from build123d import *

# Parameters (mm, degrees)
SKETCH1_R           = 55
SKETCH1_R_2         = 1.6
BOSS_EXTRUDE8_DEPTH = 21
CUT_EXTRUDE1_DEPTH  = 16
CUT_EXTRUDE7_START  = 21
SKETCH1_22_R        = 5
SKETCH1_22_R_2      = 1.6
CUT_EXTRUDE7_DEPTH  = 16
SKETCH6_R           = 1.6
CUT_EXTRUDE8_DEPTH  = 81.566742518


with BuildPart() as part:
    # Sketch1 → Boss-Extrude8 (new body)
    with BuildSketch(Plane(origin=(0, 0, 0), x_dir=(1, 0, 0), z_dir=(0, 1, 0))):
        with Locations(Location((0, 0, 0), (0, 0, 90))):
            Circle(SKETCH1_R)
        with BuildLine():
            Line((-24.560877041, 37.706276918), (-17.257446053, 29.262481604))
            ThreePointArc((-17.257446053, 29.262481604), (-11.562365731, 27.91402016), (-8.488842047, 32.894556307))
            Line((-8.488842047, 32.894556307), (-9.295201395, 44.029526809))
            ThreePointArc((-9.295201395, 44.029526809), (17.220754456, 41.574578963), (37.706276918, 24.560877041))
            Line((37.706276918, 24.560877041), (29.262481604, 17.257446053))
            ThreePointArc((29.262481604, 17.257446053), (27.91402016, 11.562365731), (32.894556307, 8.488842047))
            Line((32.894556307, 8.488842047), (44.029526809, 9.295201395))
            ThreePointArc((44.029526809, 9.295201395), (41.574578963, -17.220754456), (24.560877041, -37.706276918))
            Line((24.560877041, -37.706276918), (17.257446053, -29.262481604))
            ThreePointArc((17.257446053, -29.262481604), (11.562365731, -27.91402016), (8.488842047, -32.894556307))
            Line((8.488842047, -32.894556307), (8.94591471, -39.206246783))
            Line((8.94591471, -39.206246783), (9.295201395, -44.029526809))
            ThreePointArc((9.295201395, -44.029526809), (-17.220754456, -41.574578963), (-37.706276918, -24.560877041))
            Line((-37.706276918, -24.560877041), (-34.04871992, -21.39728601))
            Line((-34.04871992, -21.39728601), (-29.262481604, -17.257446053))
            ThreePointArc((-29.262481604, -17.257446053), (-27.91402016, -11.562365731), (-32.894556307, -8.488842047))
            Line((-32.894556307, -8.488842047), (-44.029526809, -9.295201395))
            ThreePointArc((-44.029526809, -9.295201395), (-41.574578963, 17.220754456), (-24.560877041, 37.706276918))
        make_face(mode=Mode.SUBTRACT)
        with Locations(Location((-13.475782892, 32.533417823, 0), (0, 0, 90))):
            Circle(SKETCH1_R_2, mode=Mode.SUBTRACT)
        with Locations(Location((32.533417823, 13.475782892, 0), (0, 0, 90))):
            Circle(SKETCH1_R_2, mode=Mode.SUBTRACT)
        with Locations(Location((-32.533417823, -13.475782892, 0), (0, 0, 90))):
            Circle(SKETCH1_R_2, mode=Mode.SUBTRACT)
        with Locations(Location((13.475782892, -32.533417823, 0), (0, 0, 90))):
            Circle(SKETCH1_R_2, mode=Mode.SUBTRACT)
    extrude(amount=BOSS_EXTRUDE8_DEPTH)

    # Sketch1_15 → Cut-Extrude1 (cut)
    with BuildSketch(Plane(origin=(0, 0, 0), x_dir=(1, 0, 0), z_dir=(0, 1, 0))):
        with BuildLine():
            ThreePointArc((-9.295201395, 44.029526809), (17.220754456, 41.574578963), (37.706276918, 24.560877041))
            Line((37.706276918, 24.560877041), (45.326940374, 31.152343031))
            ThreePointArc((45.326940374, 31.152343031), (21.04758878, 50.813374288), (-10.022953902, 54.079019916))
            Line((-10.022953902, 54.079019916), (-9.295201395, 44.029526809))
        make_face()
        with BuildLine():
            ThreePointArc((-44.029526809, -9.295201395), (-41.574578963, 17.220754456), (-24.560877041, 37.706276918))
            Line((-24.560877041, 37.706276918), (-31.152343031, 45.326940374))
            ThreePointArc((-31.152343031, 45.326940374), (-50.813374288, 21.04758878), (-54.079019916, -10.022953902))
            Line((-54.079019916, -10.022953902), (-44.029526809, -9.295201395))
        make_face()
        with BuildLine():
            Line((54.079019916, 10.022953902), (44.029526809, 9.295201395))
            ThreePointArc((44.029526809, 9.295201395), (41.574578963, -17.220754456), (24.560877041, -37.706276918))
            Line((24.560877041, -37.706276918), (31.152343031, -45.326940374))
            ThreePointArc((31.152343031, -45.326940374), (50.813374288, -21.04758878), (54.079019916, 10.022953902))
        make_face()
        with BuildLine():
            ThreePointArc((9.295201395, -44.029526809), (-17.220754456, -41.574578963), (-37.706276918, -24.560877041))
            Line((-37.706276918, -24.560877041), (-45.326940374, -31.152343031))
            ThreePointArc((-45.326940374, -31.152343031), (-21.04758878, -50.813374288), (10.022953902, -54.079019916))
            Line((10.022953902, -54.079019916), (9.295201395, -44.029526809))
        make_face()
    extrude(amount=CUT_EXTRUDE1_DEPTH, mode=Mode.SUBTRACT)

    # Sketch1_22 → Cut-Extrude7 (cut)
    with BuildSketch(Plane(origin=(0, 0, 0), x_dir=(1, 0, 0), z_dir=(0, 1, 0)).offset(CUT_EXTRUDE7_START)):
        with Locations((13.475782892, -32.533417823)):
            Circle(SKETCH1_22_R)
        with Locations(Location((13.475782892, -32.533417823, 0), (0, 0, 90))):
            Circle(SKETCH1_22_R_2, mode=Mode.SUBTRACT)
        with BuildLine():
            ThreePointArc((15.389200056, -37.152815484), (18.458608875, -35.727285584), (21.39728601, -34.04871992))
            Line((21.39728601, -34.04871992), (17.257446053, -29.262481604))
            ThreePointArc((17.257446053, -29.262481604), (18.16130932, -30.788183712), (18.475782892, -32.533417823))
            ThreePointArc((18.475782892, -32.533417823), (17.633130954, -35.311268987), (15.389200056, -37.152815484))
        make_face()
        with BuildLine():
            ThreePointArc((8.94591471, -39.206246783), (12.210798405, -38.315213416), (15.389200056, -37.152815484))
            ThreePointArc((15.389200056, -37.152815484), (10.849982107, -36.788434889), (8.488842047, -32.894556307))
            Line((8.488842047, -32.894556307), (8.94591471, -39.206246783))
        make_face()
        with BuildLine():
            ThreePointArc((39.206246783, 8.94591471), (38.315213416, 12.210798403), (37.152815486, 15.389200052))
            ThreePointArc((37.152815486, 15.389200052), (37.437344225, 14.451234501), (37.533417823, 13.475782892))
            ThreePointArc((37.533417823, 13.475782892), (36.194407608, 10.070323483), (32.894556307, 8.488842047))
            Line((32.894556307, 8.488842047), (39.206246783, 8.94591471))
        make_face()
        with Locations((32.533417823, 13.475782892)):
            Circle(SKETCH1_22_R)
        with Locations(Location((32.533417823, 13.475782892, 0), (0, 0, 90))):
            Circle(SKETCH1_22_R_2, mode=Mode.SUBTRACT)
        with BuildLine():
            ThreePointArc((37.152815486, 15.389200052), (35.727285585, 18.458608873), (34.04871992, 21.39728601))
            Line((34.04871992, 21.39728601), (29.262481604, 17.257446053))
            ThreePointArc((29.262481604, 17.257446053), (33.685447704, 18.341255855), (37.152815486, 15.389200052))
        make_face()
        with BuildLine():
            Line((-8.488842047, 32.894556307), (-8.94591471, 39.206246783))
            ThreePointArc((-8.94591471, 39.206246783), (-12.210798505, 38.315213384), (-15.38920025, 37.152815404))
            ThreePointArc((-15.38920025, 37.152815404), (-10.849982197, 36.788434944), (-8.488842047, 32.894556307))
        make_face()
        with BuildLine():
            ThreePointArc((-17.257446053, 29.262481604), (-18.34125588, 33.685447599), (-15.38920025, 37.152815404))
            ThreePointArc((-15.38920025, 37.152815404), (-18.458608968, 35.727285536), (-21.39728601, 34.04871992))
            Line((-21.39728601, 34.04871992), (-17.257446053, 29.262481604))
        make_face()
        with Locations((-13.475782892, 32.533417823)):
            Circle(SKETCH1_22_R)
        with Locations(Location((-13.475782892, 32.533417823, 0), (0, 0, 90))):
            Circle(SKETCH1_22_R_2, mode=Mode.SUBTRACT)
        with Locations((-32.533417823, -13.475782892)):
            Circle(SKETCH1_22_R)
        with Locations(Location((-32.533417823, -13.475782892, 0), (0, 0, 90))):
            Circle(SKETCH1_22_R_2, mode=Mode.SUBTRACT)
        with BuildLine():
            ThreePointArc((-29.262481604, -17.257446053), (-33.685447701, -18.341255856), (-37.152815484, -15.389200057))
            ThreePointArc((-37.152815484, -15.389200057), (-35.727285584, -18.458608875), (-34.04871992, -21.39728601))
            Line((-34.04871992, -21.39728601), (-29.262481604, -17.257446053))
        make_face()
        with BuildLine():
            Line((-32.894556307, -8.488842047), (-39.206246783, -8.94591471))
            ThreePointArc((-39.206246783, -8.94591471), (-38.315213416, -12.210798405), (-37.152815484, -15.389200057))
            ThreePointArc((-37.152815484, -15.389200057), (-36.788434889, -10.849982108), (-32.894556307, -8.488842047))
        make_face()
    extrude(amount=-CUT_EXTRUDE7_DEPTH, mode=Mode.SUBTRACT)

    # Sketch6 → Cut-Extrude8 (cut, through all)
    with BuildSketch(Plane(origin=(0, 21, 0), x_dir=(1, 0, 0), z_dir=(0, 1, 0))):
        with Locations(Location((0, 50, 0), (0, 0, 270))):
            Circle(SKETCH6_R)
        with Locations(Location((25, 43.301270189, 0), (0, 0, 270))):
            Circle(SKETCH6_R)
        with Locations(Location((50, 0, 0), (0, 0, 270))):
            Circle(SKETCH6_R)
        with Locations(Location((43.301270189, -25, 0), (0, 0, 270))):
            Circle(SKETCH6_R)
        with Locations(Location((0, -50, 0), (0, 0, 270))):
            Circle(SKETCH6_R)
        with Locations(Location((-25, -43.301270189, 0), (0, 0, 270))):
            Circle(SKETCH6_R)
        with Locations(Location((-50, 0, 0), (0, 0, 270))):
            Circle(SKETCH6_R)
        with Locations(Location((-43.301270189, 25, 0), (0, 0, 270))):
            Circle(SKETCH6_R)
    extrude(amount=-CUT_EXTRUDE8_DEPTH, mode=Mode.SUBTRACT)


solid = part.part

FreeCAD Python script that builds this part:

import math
import FreeCAD as App
import Part
import Sketcher
from FreeCAD import Vector

doc = App.newDocument("Part")
body = doc.addObject("PartDesign::Body", "Body")

# Sketch on XZ plane
sketch1 = body.newObject("Sketcher::SketchObject", "Sketch")
sketch1.AttachmentSupport = (doc.getObject("XZ_Plane"), [""])
sketch1.MapMode = "FlatFace"
sketch1.addGeometry([
    Part.Circle(Vector(0, 0, 0), Vector(0, 0, 1), 55),  # 0
    Part.Circle(Vector(13.5, 32.5, 0), Vector(0, 0, 1), 1.6),  # 1
    Part.Circle(Vector(32.5, -13.5, 0), Vector(0, 0, 1), 1.6),  # 2
    Part.Circle(Vector(-32.5, 13.5, 0), Vector(0, 0, 1), 1.6),  # 3
    Part.ArcOfCircle(Part.Circle(Vector(0, 0, 0), Vector(0, 0, 1), 45), math.radians(168), math.radians(237)),  # 4
    Part.LineSegment(Vector(-24.6, -37.7, 0), Vector(-17.3, -29.3, 0)),  # 5
    Part.ArcOfCircle(Part.Circle(Vector(-13.5, -32.5, 0), Vector(0, 0, 1), 5), math.radians(-4), math.radians(139)),  # 6
    Part.LineSegment(Vector(-8.5, -32.9, 0), Vector(-9.3, -44, 0)),  # 7
    Part.ArcOfCircle(Part.Circle(Vector(0, 0, 0), Vector(0, 0, 1), 45), math.radians(-102), math.radians(-33)),  # 8
    Part.LineSegment(Vector(37.7, -24.6, 0), Vector(29.3, -17.3, 0)),  # 9
    Part.ArcOfCircle(Part.Circle(Vector(32.5, -13.5, 0), Vector(0, 0, 1), 5), math.radians(86), math.radians(229)),  # 10
    Part.LineSegment(Vector(32.9, -8.5, 0), Vector(44, -9.3, 0)),  # 11
    Part.ArcOfCircle(Part.Circle(Vector(0, 0, 0), Vector(0, 0, 1), 45), math.radians(-12), math.radians(57)),  # 12
    Part.LineSegment(Vector(24.6, 37.7, 0), Vector(17.3, 29.3, 0)),  # 13
    Part.ArcOfCircle(Part.Circle(Vector(13.5, 32.5, 0), Vector(0, 0, 1), 5), math.radians(176), math.radians(319)),  # 14
    Part.LineSegment(Vector(8.5, 32.9, 0), Vector(8.9, 39.2, 0)),  # 15
    Part.LineSegment(Vector(8.9, 39.2, 0), Vector(9.3, 44, 0)),  # 16
    Part.ArcOfCircle(Part.Circle(Vector(0, 0, 0), Vector(0, 0, 1), 45), math.radians(78), math.radians(147)),  # 17
    Part.LineSegment(Vector(-37.7, 24.6, 0), Vector(-34, 21.4, 0)),  # 18
    Part.LineSegment(Vector(-34, 21.4, 0), Vector(-29.3, 17.3, 0)),  # 19
    Part.ArcOfCircle(Part.Circle(Vector(-32.5, 13.5, 0), Vector(0, 0, 1), 5), math.radians(-94), math.radians(49)),  # 20
    Part.LineSegment(Vector(-32.9, 8.5, 0), Vector(-44, 9.3, 0)),  # 21
    Part.Circle(Vector(-13.5, -32.5, 0), Vector(0, 0, 1), 1.6),  # 22
], False)
sketch1.addConstraint([
    Sketcher.Constraint("Coincident", 4, 2, 5, 1),
    Sketcher.Constraint("Tangent", 5, 2, 6, 2),
    Sketcher.Constraint("Tangent", 6, 1, 7, 1),
    Sketcher.Constraint("Coincident", 7, 2, 8, 1),
    Sketcher.Constraint("Coincident", 8, 2, 9, 1),
    Sketcher.Constraint("Tangent", 9, 2, 10, 2),
    Sketcher.Constraint("Tangent", 10, 1, 11, 1),
    Sketcher.Constraint("Coincident", 11, 2, 12, 1),
    Sketcher.Constraint("Coincident", 12, 2, 13, 1),
    Sketcher.Constraint("Tangent", 13, 2, 14, 2),
    Sketcher.Constraint("Tangent", 14, 1, 15, 1),
    Sketcher.Constraint("Coincident", 15, 2, 16, 1),
    Sketcher.Constraint("Coincident", 16, 2, 17, 1),
    Sketcher.Constraint("Coincident", 17, 2, 18, 1),
    Sketcher.Constraint("Coincident", 18, 2, 19, 1),
    Sketcher.Constraint("Tangent", 19, 2, 20, 2),
    Sketcher.Constraint("Tangent", 20, 1, 21, 1),
    Sketcher.Constraint("Coincident", 21, 2, 4, 1),
    Sketcher.Constraint("Coincident", 0, 3, -1, 1),
    Sketcher.Constraint("Coincident", 4, 3, -1, 1),
    Sketcher.Constraint("Coincident", 8, 3, -1, 1),
    Sketcher.Constraint("Coincident", 12, 3, -1, 1),
    Sketcher.Constraint("Coincident", 17, 3, -1, 1),
    Sketcher.Constraint("Coincident", 10, 3, 2, 3),
    Sketcher.Constraint("Coincident", 14, 3, 1, 3),
    Sketcher.Constraint("Coincident", 20, 3, 3, 3),
    Sketcher.Constraint("Coincident", 22, 3, 6, 3),
    Sketcher.Constraint("Equal", 1, 2),
    Sketcher.Constraint("Equal", 2, 3),
    Sketcher.Constraint("Equal", 4, 8),
    Sketcher.Constraint("Equal", 6, 10),
    Sketcher.Constraint("Equal", 8, 12),
    Sketcher.Constraint("Equal", 10, 14),
    Sketcher.Constraint("Equal", 12, 17),
    Sketcher.Constraint("Equal", 14, 20),
    Sketcher.Constraint("Equal", 3, 22),
    Sketcher.Constraint("Symmetric", 2, 3, 3, 3, -1, 1),
    Sketcher.Constraint("Symmetric", 1, 3, 6, 3, -1, 1),
    Sketcher.Constraint("Perpendicular", 5, 9),
    Sketcher.Constraint("Perpendicular", 7, 11),
    Sketcher.Constraint("Perpendicular", 9, 13),
    Sketcher.Constraint("Perpendicular", 11, 15),
    Sketcher.Constraint("Parallel", 15, 16),
    Sketcher.Constraint("Perpendicular", 13, 18),
    Sketcher.Constraint("Parallel", 18, 19),
    Sketcher.Constraint("Perpendicular", 16, 21),
    Sketcher.Constraint("Equal", 5, 7),
    Sketcher.Constraint("Equal", 7, 9),
    Sketcher.Constraint("Equal", 9, 11),
    Sketcher.Constraint("Equal", 16, 18),
    Sketcher.Constraint("Diameter", 0, 110.0),
    Sketcher.Constraint("Radius", 4, 45.0),
    Sketcher.Constraint("Radius", 6, 5.0),
    Sketcher.Constraint("Diameter", 1, 3.2),
    Sketcher.Constraint("DistanceX", 7, 2, -1, 1, 9.295201),
    Sketcher.Constraint("DistanceY", 2, 3, 1, 3, 46.009201),
    Sketcher.Constraint("Distance", 5, 11.164129),
    Sketcher.Constraint("Distance", 15, 6.328219),
])
pad1 = body.newObject("PartDesign::Pad", "Pad")
pad1.Profile = sketch1
pad1.Length = 21
pad1.Reversed = True

# Sketch on XZ plane
sketch2 = body.newObject("Sketcher::SketchObject", "Sketch001")
sketch2.AttachmentSupport = (doc.getObject("XZ_Plane"), [""])
sketch2.MapMode = "FlatFace"
sketch2.addGeometry([
    Part.ArcOfCircle(Part.Circle(Vector(0, 0, 0), Vector(0, 0, 1), 45), math.radians(-102), math.radians(-33)),  # 0
    Part.LineSegment(Vector(38, -25, 0), Vector(45, -31, 0)),  # 1
    Part.ArcOfCircle(Part.Circle(Vector(0, 0, 0), Vector(0, 0, 1), 55), math.radians(-100), math.radians(-35)),  # 2
    Part.LineSegment(Vector(-10, -54, 0), Vector(-9, -44, 0)),  # 3
    Part.ArcOfCircle(Part.Circle(Vector(0, 0, 0), Vector(0, 0, 1), 45), math.radians(168), math.radians(237)),  # 4
    Part.LineSegment(Vector(-25, -38, 0), Vector(-31, -45, 0)),  # 5
    Part.ArcOfCircle(Part.Circle(Vector(0, 0, 0), Vector(0, 0, 1), 55), math.radians(170), math.radians(235)),  # 6
    Part.LineSegment(Vector(-54, 10, 0), Vector(-44, 9, 0)),  # 7
    Part.LineSegment(Vector(54, -10, 0), Vector(44, -9, 0)),  # 8
    Part.ArcOfCircle(Part.Circle(Vector(0, 0, 0), Vector(0, 0, 1), 45), math.radians(-12), math.radians(57)),  # 9
    Part.LineSegment(Vector(25, 38, 0), Vector(31, 45, 0)),  # 10
    Part.ArcOfCircle(Part.Circle(Vector(0, 0, 0), Vector(0, 0, 1), 55), math.radians(-10), math.radians(55)),  # 11
    Part.ArcOfCircle(Part.Circle(Vector(0, 0, 0), Vector(0, 0, 1), 45), math.radians(78), math.radians(147)),  # 12
    Part.LineSegment(Vector(-38, 25, 0), Vector(-45, 31, 0)),  # 13
    Part.ArcOfCircle(Part.Circle(Vector(0, 0, 0), Vector(0, 0, 1), 55), math.radians(80), math.radians(145)),  # 14
    Part.LineSegment(Vector(10, 54, 0), Vector(9, 44, 0)),  # 15
], False)
sketch2.addConstraint([
    Sketcher.Constraint("Coincident", 0, 2, 1, 1),
    Sketcher.Constraint("Coincident", 1, 2, 2, 2),
    Sketcher.Constraint("Coincident", 2, 1, 3, 1),
    Sketcher.Constraint("Coincident", 3, 2, 0, 1),
    Sketcher.Constraint("Coincident", 4, 2, 5, 1),
    Sketcher.Constraint("Coincident", 5, 2, 6, 2),
    Sketcher.Constraint("Coincident", 6, 1, 7, 1),
    Sketcher.Constraint("Coincident", 7, 2, 4, 1),
    Sketcher.Constraint("Coincident", 8, 2, 9, 1),
    Sketcher.Constraint("Coincident", 9, 2, 10, 1),
    Sketcher.Constraint("Coincident", 10, 2, 11, 2),
    Sketcher.Constraint("Coincident", 11, 1, 8, 1),
    Sketcher.Constraint("Coincident", 12, 2, 13, 1),
    Sketcher.Constraint("Coincident", 13, 2, 14, 2),
    Sketcher.Constraint("Coincident", 14, 1, 15, 1),
    Sketcher.Constraint("Coincident", 15, 2, 12, 1),
    Sketcher.Constraint("Coincident", 0, 3, -1, 1),
    Sketcher.Constraint("Coincident", 2, 3, -1, 1),
    Sketcher.Constraint("Coincident", 4, 3, -1, 1),
    Sketcher.Constraint("Coincident", 6, 3, -1, 1),
    Sketcher.Constraint("Coincident", 9, 3, -1, 1),
    Sketcher.Constraint("Coincident", 11, 3, -1, 1),
    Sketcher.Constraint("Coincident", 12, 3, -1, 1),
    Sketcher.Constraint("Coincident", 14, 3, -1, 1),
    Sketcher.Constraint("Equal", 0, 4),
    Sketcher.Constraint("Equal", 2, 6),
    Sketcher.Constraint("Equal", 4, 9),
    Sketcher.Constraint("Equal", 6, 11),
    Sketcher.Constraint("Equal", 9, 12),
    Sketcher.Constraint("Equal", 11, 14),
    Sketcher.Constraint("Perpendicular", 1, 5),
    Sketcher.Constraint("Perpendicular", 3, 7),
    Sketcher.Constraint("Parallel", 7, 8),
    Sketcher.Constraint("Parallel", 5, 10),
    Sketcher.Constraint("Perpendicular", 10, 13),
    Sketcher.Constraint("Perpendicular", 8, 15),
    Sketcher.Constraint("Equal", 1, 3),
    Sketcher.Constraint("Equal", 3, 5),
    Sketcher.Constraint("Equal", 5, 7),
    Sketcher.Constraint("Equal", 7, 8),
    Sketcher.Constraint("Equal", 8, 10),
    Sketcher.Constraint("Equal", 10, 13),
    Sketcher.Constraint("Equal", 13, 15),
    Sketcher.Constraint("Radius", 0, 45.0),
    Sketcher.Constraint("Radius", 2, 55.0),
    Sketcher.Constraint("DistanceX", 3, 2, -1, 1, 9.295201),
    Sketcher.Constraint("Distance", 1, 10.075809),
    Sketcher.Constraint("DistanceX", -1, 1, 1, 2, 45.32694),
])
pocket1 = body.newObject("PartDesign::Pocket", "Pocket")
pocket1.Profile = sketch2
pocket1.Length = 16

# Sketch on XZ plane
sketch3 = body.newObject("Sketcher::SketchObject", "Sketch002")
sketch3.AttachmentSupport = (doc.getObject("XZ_Plane"), [""])
sketch3.MapMode = "FlatFace"
sketch3.AttachmentOffset = App.Placement(Vector(0, 0, -21), App.Rotation())
sketch3.addGeometry([
    Part.ArcOfCircle(Part.Circle(Vector(13.5, 32.5, 0), Vector(0, 0, 1), 5), math.radians(176), math.radians(319)),  # 0
    Part.LineSegment(Vector(8.5, 32.9, 0), Vector(8.9, 39.2, 0)),  # 1
    Part.ArcOfCircle(Part.Circle(Vector(0, 0, 0), Vector(0, 0, 1), 40.2), math.radians(67.5), math.radians(77.15)),  # 2
    Part.ArcOfCircle(Part.Circle(Vector(0, 0, 0), Vector(0, 0, 1), 40.2), math.radians(57.85), math.radians(67.5)),  # 3
    Part.LineSegment(Vector(21.4, 34, 0), Vector(17.3, 29.3, 0)),  # 4
    Part.Circle(Vector(13.5, 32.5, 0), Vector(0, 0, 1), 1.6),  # 5
    Part.ArcOfCircle(Part.Circle(Vector(0, 0, 0), Vector(0, 0, 1), 40.2), math.radians(-22.5), math.radians(-12.85)),  # 6
    Part.ArcOfCircle(Part.Circle(Vector(0, 0, 0), Vector(0, 0, 1), 40.2), math.radians(-32.15), math.radians(-22.5)),  # 7
    Part.LineSegment(Vector(34, -21.4, 0), Vector(29.3, -17.3, 0)),  # 8
    Part.ArcOfCircle(Part.Circle(Vector(32.5, -13.5, 0), Vector(0, 0, 1), 5), math.radians(86), math.radians(229)),  # 9
    Part.LineSegment(Vector(32.9, -8.5, 0), Vector(39.2, -8.9, 0)),  # 10
    Part.Circle(Vector(32.5, -13.5, 0), Vector(0, 0, 1), 1.6),  # 11
    Part.LineSegment(Vector(-8.5, -32.9, 0), Vector(-8.9, -39.2, 0)),  # 12
    Part.ArcOfCircle(Part.Circle(Vector(0, 0, 0), Vector(0, 0, 1), 40.2), math.radians(-112.5), math.radians(-102.85)),  # 13
    Part.ArcOfCircle(Part.Circle(Vector(0, 0, 0), Vector(0, 0, 1), 40.2), math.radians(-122.15), math.radians(-112.5)),  # 14
    Part.LineSegment(Vector(-21.4, -34, 0), Vector(-17.3, -29.3, 0)),  # 15
    Part.ArcOfCircle(Part.Circle(Vector(-13.5, -32.5, 0), Vector(0, 0, 1), 5), math.radians(-4), math.radians(139)),  # 16
    Part.Circle(Vector(-13.5, -32.5, 0), Vector(0, 0, 1), 1.6),  # 17
    Part.ArcOfCircle(Part.Circle(Vector(0, 0, 0), Vector(0, 0, 1), 40.2), math.radians(147.85), math.radians(157.5)),  # 18
    Part.LineSegment(Vector(-34, 21.4, 0), Vector(-29.3, 17.3, 0)),  # 19
    Part.ArcOfCircle(Part.Circle(Vector(-32.5, 13.5, 0), Vector(0, 0, 1), 5), math.radians(-94), math.radians(49)),  # 20
    Part.LineSegment(Vector(-32.9, 8.5, 0), Vector(-39.2, 8.9, 0)),  # 21
    Part.ArcOfCircle(Part.Circle(Vector(0, 0, 0), Vector(0, 0, 1), 40.2), math.radians(157.5), math.radians(167.15)),  # 22
    Part.Circle(Vector(-32.5, 13.5, 0), Vector(0, 0, 1), 1.6),  # 23
], False)
sketch3.addConstraint([
    Sketcher.Constraint("Tangent", 0, 1, 1, 1),
    Sketcher.Constraint("Coincident", 1, 2, 2, 2),
    Sketcher.Constraint("Tangent", 2, 1, 3, 2),
    Sketcher.Constraint("Coincident", 3, 1, 4, 1),
    Sketcher.Constraint("Tangent", 4, 2, 0, 2),
    Sketcher.Constraint("Tangent", 6, 1, 7, 2),
    Sketcher.Constraint("Coincident", 7, 1, 8, 1),
    Sketcher.Constraint("Tangent", 8, 2, 9, 2),
    Sketcher.Constraint("Tangent", 9, 1, 10, 1),
    Sketcher.Constraint("Coincident", 10, 2, 6, 2),
    Sketcher.Constraint("Coincident", 12, 2, 13, 2),
    Sketcher.Constraint("Tangent", 13, 1, 14, 2),
    Sketcher.Constraint("Coincident", 14, 1, 15, 1),
    Sketcher.Constraint("Tangent", 15, 2, 16, 2),
    Sketcher.Constraint("Tangent", 16, 1, 12, 1),
    Sketcher.Constraint("Coincident", 18, 1, 19, 1),
    Sketcher.Constraint("Tangent", 19, 2, 20, 2),
    Sketcher.Constraint("Tangent", 20, 1, 21, 1),
    Sketcher.Constraint("Coincident", 21, 2, 22, 2),
    Sketcher.Constraint("Tangent", 22, 1, 18, 2),
    Sketcher.Constraint("Coincident", 2, 3, -1, 1),
    Sketcher.Constraint("Coincident", 6, 3, -1, 1),
    Sketcher.Constraint("Coincident", 13, 3, -1, 1),
    Sketcher.Constraint("Coincident", 18, 3, -1, 1),
    Sketcher.Constraint("Coincident", 5, 3, 0, 3),
    Sketcher.Constraint("Coincident", 11, 3, 9, 3),
    Sketcher.Constraint("Coincident", 17, 3, 16, 3),
    Sketcher.Constraint("Coincident", 23, 3, 20, 3),
    Sketcher.Constraint("Equal", 2, 3),
    Sketcher.Constraint("Equal", 3, 6),
    Sketcher.Constraint("Equal", 6, 7),
    Sketcher.Constraint("Equal", 0, 9),
    Sketcher.Constraint("Equal", 5, 11),
    Sketcher.Constraint("Equal", 7, 13),
    Sketcher.Constraint("Equal", 13, 14),
    Sketcher.Constraint("Equal", 9, 16),
    Sketcher.Constraint("Equal", 11, 17),
    Sketcher.Constraint("Equal", 14, 18),
    Sketcher.Constraint("Equal", 16, 20),
    Sketcher.Constraint("Equal", 18, 22),
    Sketcher.Constraint("Equal", 17, 23),
    Sketcher.Constraint("Symmetric", 0, 3, 16, 3, -1, 1),
    Sketcher.Constraint("Symmetric", 9, 3, 20, 3, -1, 1),
    Sketcher.Constraint("Perpendicular", 4, 8),
    Sketcher.Constraint("Perpendicular", 1, 10),
    Sketcher.Constraint("Perpendicular", 10, 12),
    Sketcher.Constraint("Perpendicular", 8, 15),
    Sketcher.Constraint("Perpendicular", 15, 19),
    Sketcher.Constraint("Perpendicular", 12, 21),
    Sketcher.Constraint("Equal", 1, 4),
    Sketcher.Constraint("Equal", 4, 8),
    Sketcher.Constraint("Equal", 8, 10),
    Sketcher.Constraint("Radius", 0, 5.0),
    Sketcher.Constraint("Diameter", 5, 3.2),
    Sketcher.Constraint("Radius", 2, 40.213918),
    Sketcher.Constraint("DistanceX", -1, 1, 2, 1, 15.3892),
    Sketcher.Constraint("DistanceY", 6, 1, -1, 1, 15.3892),
    Sketcher.Constraint("DistanceX", 13, 1, -1, 1, 15.3892),
    Sketcher.Constraint("DistanceY", -1, 1, 22, 1, 15.3892),
    Sketcher.Constraint("DistanceY", 9, 3, 0, 3, 46.009201),
    Sketcher.Constraint("Distance", 1, 6.328219),
    Sketcher.Constraint("DistanceY", -1, 1, 3, 1, 34.04872),
])
pocket2 = body.newObject("PartDesign::Pocket", "Pocket001")
pocket2.Profile = sketch3
pocket2.Length = 16
pocket2.Reversed = True

# Sketch on XZ plane
sketch4 = body.newObject("Sketcher::SketchObject", "Sketch003")
sketch4.AttachmentSupport = (doc.getObject("XZ_Plane"), [""])
sketch4.MapMode = "FlatFace"
sketch4.AttachmentOffset = App.Placement(Vector(0, 0, -21), App.Rotation())
sketch4.addGeometry([
    Part.Circle(Vector(0, -50, 0), Vector(0, 0, 1), 1.6),  # 0
    Part.Circle(Vector(25, -43.3, 0), Vector(0, 0, 1), 1.6),  # 1
    Part.Circle(Vector(50, 0, 0), Vector(0, 0, 1), 1.6),  # 2
    Part.Circle(Vector(43.3, 25, 0), Vector(0, 0, 1), 1.6),  # 3
    Part.Circle(Vector(0, 50, 0), Vector(0, 0, 1), 1.6),  # 4
    Part.Circle(Vector(-25, 43.3, 0), Vector(0, 0, 1), 1.6),  # 5
    Part.Circle(Vector(-50, 0, 0), Vector(0, 0, 1), 1.6),  # 6
    Part.Circle(Vector(-43.3, -25, 0), Vector(0, 0, 1), 1.6),  # 7
], False)
sketch4.addConstraint([
    Sketcher.Constraint("Equal", 0, 1),
    Sketcher.Constraint("Equal", 1, 2),
    Sketcher.Constraint("Equal", 2, 3),
    Sketcher.Constraint("Equal", 3, 4),
    Sketcher.Constraint("Equal", 4, 5),
    Sketcher.Constraint("Equal", 5, 6),
    Sketcher.Constraint("Equal", 6, 7),
    Sketcher.Constraint("Symmetric", 0, 3, 4, 3, -1, 1),
    Sketcher.Constraint("Symmetric", 1, 3, 5, 3, -1, 1),
    Sketcher.Constraint("Symmetric", 2, 3, 6, 3, -1, 1),
    Sketcher.Constraint("Symmetric", 3, 3, 7, 3, -1, 1),
    Sketcher.Constraint("PointOnObject", 0, 3, -2),
    Sketcher.Constraint("PointOnObject", 2, 3, -1),
    Sketcher.Constraint("Diameter", 0, 3.2),
    Sketcher.Constraint("DistanceY", 0, 3, -1, 1, 50.0),
    Sketcher.Constraint("DistanceX", -1, 1, 1, 3, 25.0),
    Sketcher.Constraint("DistanceX", -1, 1, 2, 3, 50.0),
    Sketcher.Constraint("DistanceY", -1, 1, 3, 3, 25.0),
    Sketcher.Constraint("DistanceY", 1, 3, -1, 1, 43.30127),
    Sketcher.Constraint("DistanceX", -1, 1, 3, 3, 43.30127),
])
pocket3 = body.newObject("PartDesign::Pocket", "Pocket002")
pocket3.Profile = sketch4
pocket3.Type = "ThroughAll"
pocket3.Reversed = True

doc.recompute()
